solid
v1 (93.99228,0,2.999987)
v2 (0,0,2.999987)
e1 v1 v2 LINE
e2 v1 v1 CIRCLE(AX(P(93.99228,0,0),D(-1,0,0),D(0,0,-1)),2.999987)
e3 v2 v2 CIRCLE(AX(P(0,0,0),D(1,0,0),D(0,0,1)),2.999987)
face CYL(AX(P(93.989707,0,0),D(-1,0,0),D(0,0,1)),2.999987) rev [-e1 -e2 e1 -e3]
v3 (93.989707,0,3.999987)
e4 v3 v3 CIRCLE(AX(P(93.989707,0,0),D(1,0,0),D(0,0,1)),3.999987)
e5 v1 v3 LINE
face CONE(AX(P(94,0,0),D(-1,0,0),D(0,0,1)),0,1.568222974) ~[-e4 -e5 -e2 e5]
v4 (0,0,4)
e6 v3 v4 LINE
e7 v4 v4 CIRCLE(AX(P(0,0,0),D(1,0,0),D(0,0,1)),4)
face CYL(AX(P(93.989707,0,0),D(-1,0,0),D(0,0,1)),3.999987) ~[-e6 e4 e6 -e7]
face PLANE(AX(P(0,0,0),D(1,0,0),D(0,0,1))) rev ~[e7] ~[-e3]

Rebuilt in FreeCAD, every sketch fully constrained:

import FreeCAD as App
import Part
import Sketcher

V = App.Vector
Q = App.Units.Quantity


def faces_at(feature, points):
    """Names of the faces that lie closest to the given points."""
    faces = feature.Shape.Faces
    near = lambda p: min(range(len(faces)), key=lambda i: faces[i].distToShape(Part.Vertex(*p))[0])
    return sorted({f"Face{near(p) + 1}" for p in points})


def add_polygon(sketch, points):
    """Adds a closed chain of lines whose ends are joined by coincident constraints."""
    first, n = sketch.GeometryCount, len(points)
    for a, b in zip(points, points[1:] + points[:1]):
        sketch.addGeometry(Part.LineSegment(App.Vector(*a, 0), App.Vector(*b, 0)), False)
    for i in range(n):
        sketch.addConstraint(Sketcher.Constraint("Coincident", first + i, 2, first + (i + 1) % n, 1))

doc = App.newDocument("Part")
body = doc.addObject("PartDesign::Body", "Body")

# Sketch on XZ plane
sketch1 = body.newObject("Sketcher::SketchObject", "Sketch")
sketch1.AttachmentSupport = (doc.getObject("XZ_Plane"), [""])
sketch1.MapMode = "FlatFace"
add_polygon(sketch1, [(0, 4), (0, 0), (94, 0), (94, 4)])  # lines 0-3
sketch1.addConstraint([
    Sketcher.Constraint("Vertical", 0),
    Sketcher.Constraint("Horizontal", 1),
    Sketcher.Constraint("Coincident", 0, 2, -1, 1),
    Sketcher.Constraint("DistanceX", 1, 1, 1, 2, 94.0),
    Sketcher.Constraint("DistanceY", 0, 2, 0, 1, 4.0),
    Sketcher.Constraint("Angle", 3, Q("179.999992 deg")),
    Sketcher.Constraint("Distance", 3, 93.989707),
])
revolution = body.newObject("PartDesign::Revolution", "Revolution")
revolution.Profile = sketch1
revolution.ReferenceAxis = (sketch1, ["H_Axis"])
revolution.Angle = 360
doc.recompute()

thickness = body.newObject("PartDesign::Thickness", "Thickness")
thickness.Base = (revolution, faces_at(revolution, [(93.995, 0, -2), (0, 0, 0)]))
thickness.Value = 1
thickness.Reversed = True
thickness.Join = "Arc"

doc.recompute()
